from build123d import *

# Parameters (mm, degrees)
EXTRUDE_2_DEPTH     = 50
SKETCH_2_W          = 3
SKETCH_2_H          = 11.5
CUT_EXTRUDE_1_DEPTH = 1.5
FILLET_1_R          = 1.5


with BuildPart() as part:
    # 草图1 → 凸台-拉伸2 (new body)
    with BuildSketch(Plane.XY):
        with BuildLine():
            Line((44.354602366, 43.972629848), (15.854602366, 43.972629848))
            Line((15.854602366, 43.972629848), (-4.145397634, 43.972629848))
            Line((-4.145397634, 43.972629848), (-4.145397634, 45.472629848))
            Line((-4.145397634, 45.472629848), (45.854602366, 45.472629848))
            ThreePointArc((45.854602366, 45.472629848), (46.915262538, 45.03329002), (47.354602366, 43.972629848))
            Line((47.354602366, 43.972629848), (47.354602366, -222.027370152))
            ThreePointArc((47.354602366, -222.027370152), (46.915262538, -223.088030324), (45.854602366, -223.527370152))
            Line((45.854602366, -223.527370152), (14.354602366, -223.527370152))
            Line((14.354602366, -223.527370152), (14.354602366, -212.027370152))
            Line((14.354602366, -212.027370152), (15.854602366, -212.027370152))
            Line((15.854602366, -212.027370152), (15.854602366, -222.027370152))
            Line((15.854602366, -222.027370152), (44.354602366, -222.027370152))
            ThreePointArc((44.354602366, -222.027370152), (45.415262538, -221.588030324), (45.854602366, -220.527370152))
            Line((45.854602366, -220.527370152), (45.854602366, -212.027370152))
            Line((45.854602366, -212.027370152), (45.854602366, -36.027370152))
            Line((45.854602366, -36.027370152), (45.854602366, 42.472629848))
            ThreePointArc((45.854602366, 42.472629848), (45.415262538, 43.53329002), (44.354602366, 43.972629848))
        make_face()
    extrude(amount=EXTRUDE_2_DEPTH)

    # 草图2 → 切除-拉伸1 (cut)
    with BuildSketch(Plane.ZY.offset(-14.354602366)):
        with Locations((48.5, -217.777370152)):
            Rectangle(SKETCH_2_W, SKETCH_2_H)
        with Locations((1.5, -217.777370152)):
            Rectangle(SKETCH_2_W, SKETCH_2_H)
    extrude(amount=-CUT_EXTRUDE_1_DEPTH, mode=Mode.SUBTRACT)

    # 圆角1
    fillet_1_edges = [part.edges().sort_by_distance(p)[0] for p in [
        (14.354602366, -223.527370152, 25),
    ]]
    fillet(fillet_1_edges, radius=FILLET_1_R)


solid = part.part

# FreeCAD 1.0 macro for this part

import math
import FreeCAD as App
import Part
import Sketcher


def edges_at(feature, points):
    """Names of the edges that pass closest to the given points."""
    edges = feature.Shape.Edges
    near = lambda p: min(range(len(edges)), key=lambda i: edges[i].distToShape(Part.Vertex(*p))[0])
    return sorted({f"Edge{near(p) + 1}" for p in points})


def add_polygon(sketch, points):
    """Adds a closed chain of lines whose ends are joined by coincident constraints."""
    first, n = sketch.GeometryCount, len(points)
    for a, b in zip(points, points[1:] + points[:1]):
        sketch.addGeometry(Part.LineSegment(App.Vector(*a, 0), App.Vector(*b, 0)), False)
    for i in range(n):
        sketch.addConstraint(Sketcher.Constraint("Coincident", first + i, 2, first + (i + 1) % n, 1))

doc = App.newDocument("Part")
body = doc.addObject("PartDesign::Body", "Body")

# Sketch on XY plane
sketch1 = body.newObject("Sketcher::SketchObject", "Sketch")
sketch1.AttachmentSupport = (doc.getObject("XY_Plane"), [""])
sketch1.MapMode = "FlatFace"
sketch1.addGeometry([
    Part.LineSegment(App.Vector(-4.1, 44, 0), App.Vector(44.4, 44, 0)),  # 0
    Part.ArcOfCircle(Part.Circle(App.Vector(44.4, 42.5, 0), App.Vector(0, 0, 1), 1.5), math.radians(0), math.radians(90)),  # 1
    Part.LineSegment(App.Vector(45.9, 42.5, 0), App.Vector(45.9, -220.5, 0)),  # 2
    Part.ArcOfCircle(Part.Circle(App.Vector(44.4, -220.5, 0), App.Vector(0, 0, 1), 1.5), math.radians(-90), math.radians(0)),  # 3
    Part.LineSegment(App.Vector(44.4, -222, 0), App.Vector(15.9, -222, 0)),  # 4
    Part.LineSegment(App.Vector(15.9, -222, 0), App.Vector(15.9, -212, 0)),  # 5
    Part.LineSegment(App.Vector(15.9, -212, 0), App.Vector(14.4, -212, 0)),  # 6
    Part.LineSegment(App.Vector(14.4, -212, 0), App.Vector(14.4, -223.5, 0)),  # 7
    Part.LineSegment(App.Vector(14.4, -223.5, 0), App.Vector(45.9, -223.5, 0)),  # 8
    Part.ArcOfCircle(Part.Circle(App.Vector(45.9, -222, 0), App.Vector(0, 0, 1), 1.5), math.radians(-90), math.radians(0)),  # 9
    Part.LineSegment(App.Vector(47.4, -222, 0), App.Vector(47.4, 44, 0)),  # 10
    Part.ArcOfCircle(Part.Circle(App.Vector(45.9, 44, 0), App.Vector(0, 0, 1), 1.5), math.radians(0), math.radians(90)),  # 11
    Part.LineSegment(App.Vector(45.9, 45.5, 0), App.Vector(-4.1, 45.5, 0)),  # 12
    Part.LineSegment(App.Vector(-4.1, 45.5, 0), App.Vector(-4.1, 44, 0)),  # 13
], False)
sketch1.addConstraint([
    Sketcher.Constraint("Tangent", 0, 2, 1, 2),
    Sketcher.Constraint("Tangent", 1, 1, 2, 1),
    Sketcher.Constraint("Tangent", 2, 2, 3, 2),
    Sketcher.Constraint("Tangent", 3, 1, 4, 1),
    Sketcher.Constraint("Coincident", 4, 2, 5, 1),
    Sketcher.Constraint("Coincident", 5, 2, 6, 1),
    Sketcher.Constraint("Coincident", 6, 2, 7, 1),
    Sketcher.Constraint("Coincident", 7, 2, 8, 1),
    Sketcher.Constraint("Tangent", 8, 2, 9, 1),
    Sketcher.Constraint("Tangent", 9, 2, 10, 1),
    Sketcher.Constraint("Tangent", 10, 2, 11, 1),
    Sketcher.Constraint("Tangent", 11, 2, 12, 1),
    Sketcher.Constraint("Coincident", 12, 2, 13, 1),
    Sketcher.Constraint("Coincident", 13, 2, 0, 1),
    Sketcher.Constraint("Horizontal", 0),
    Sketcher.Constraint("Vertical", 2),
    Sketcher.Constraint("Horizontal", 4),
    Sketcher.Constraint("Vertical", 5),
    Sketcher.Constraint("Horizontal", 6),
    Sketcher.Constraint("Vertical", 7),
    Sketcher.Constraint("Horizontal", 8),
    Sketcher.Constraint("Vertical", 10),
    Sketcher.Constraint("Horizontal", 12),
    Sketcher.Constraint("Vertical", 13),
    Sketcher.Constraint("Equal", 1, 3),
    Sketcher.Constraint("Equal", 3, 9),
    Sketcher.Constraint("Equal", 9, 11),
    Sketcher.Constraint("Horizontal", 11, 3, 0, 2),
    Sketcher.Constraint("Horizontal", 9, 3, 3, 1),
    Sketcher.Constraint("Vertical", 11, 3, 1, 1),
    Sketcher.Constraint("Equal", 6, 13),
    Sketcher.Constraint("Radius", 1, 1.5),
    Sketcher.Constraint("DistanceX", 12, 2, 12, 1, 50.0),
    Sketcher.Constraint("DistanceY", 2, 2, 2, 1, 263.0),
    Sketcher.Constraint("DistanceY", 5, 1, 5, 2, 10.0),
    Sketcher.Constraint("DistanceX", 4, 2, 4, 1, 28.5),
    Sketcher.Constraint("DistanceY", -1, 1, 1, 3, 42.47263),
    Sketcher.Constraint("DistanceX", -1, 1, 1, 3, 44.354602),
])
pad1 = body.newObject("PartDesign::Pad", "Pad")
pad1.Profile = sketch1
pad1.Length = 50

# Sketch on YZ plane
sketch2 = body.newObject("Sketcher::SketchObject", "Sketch001")
sketch2.AttachmentSupport = (doc.getObject("YZ_Plane"), [""])
sketch2.MapMode = "FlatFace"
sketch2.AttachmentOffset = App.Placement(App.Vector(0, 0, 14.354602), App.Rotation())
add_polygon(sketch2, [(-212, 47), (-223.5, 47), (-223.5, 50), (-212, 50)])  # lines 0-3
add_polygon(sketch2, [(-212, 0), (-223.5, 0), (-223.5, 3), (-212, 3)])  # lines 4-7
sketch2.addConstraint([
    Sketcher.Constraint("Horizontal", 0),
    Sketcher.Constraint("Vertical", 1),
    Sketcher.Constraint("Horizontal", 2),
    Sketcher.Constraint("Vertical", 3),
    Sketcher.Constraint("Horizontal", 4),
    Sketcher.Constraint("Vertical", 5),
    Sketcher.Constraint("Horizontal", 6),
    Sketcher.Constraint("Vertical", 7),
    Sketcher.Constraint("PointOnObject", 4, 2, -1),
    Sketcher.Constraint("Vertical", 1, 2, 4, 2),
    Sketcher.Constraint("Vertical", 3, 2, 6, 2),
    Sketcher.Constraint("Equal", 3, 5),
    Sketcher.Constraint("DistanceY", 1, 1, 1, 2, 3.0),
    Sketcher.Constraint("DistanceX", 0, 2, 0, 1, 11.5),
    Sketcher.Constraint("DistanceY", -1, 1, 0, 2, 47.0),
    Sketcher.Constraint("DistanceX", 0, 2, -1, 1, 223.52737),
])
pocket1 = body.newObject("PartDesign::Pocket", "Pocket")
pocket1.Profile = sketch2
pocket1.Length = 1.5
pocket1.Reversed = True
doc.recompute()

fillet = body.newObject("PartDesign::Fillet", "Fillet")
fillet.Base = (pocket1, edges_at(pocket1, [(14.355, -223.527, 25)]))
fillet.Radius = 1.5

doc.recompute()
